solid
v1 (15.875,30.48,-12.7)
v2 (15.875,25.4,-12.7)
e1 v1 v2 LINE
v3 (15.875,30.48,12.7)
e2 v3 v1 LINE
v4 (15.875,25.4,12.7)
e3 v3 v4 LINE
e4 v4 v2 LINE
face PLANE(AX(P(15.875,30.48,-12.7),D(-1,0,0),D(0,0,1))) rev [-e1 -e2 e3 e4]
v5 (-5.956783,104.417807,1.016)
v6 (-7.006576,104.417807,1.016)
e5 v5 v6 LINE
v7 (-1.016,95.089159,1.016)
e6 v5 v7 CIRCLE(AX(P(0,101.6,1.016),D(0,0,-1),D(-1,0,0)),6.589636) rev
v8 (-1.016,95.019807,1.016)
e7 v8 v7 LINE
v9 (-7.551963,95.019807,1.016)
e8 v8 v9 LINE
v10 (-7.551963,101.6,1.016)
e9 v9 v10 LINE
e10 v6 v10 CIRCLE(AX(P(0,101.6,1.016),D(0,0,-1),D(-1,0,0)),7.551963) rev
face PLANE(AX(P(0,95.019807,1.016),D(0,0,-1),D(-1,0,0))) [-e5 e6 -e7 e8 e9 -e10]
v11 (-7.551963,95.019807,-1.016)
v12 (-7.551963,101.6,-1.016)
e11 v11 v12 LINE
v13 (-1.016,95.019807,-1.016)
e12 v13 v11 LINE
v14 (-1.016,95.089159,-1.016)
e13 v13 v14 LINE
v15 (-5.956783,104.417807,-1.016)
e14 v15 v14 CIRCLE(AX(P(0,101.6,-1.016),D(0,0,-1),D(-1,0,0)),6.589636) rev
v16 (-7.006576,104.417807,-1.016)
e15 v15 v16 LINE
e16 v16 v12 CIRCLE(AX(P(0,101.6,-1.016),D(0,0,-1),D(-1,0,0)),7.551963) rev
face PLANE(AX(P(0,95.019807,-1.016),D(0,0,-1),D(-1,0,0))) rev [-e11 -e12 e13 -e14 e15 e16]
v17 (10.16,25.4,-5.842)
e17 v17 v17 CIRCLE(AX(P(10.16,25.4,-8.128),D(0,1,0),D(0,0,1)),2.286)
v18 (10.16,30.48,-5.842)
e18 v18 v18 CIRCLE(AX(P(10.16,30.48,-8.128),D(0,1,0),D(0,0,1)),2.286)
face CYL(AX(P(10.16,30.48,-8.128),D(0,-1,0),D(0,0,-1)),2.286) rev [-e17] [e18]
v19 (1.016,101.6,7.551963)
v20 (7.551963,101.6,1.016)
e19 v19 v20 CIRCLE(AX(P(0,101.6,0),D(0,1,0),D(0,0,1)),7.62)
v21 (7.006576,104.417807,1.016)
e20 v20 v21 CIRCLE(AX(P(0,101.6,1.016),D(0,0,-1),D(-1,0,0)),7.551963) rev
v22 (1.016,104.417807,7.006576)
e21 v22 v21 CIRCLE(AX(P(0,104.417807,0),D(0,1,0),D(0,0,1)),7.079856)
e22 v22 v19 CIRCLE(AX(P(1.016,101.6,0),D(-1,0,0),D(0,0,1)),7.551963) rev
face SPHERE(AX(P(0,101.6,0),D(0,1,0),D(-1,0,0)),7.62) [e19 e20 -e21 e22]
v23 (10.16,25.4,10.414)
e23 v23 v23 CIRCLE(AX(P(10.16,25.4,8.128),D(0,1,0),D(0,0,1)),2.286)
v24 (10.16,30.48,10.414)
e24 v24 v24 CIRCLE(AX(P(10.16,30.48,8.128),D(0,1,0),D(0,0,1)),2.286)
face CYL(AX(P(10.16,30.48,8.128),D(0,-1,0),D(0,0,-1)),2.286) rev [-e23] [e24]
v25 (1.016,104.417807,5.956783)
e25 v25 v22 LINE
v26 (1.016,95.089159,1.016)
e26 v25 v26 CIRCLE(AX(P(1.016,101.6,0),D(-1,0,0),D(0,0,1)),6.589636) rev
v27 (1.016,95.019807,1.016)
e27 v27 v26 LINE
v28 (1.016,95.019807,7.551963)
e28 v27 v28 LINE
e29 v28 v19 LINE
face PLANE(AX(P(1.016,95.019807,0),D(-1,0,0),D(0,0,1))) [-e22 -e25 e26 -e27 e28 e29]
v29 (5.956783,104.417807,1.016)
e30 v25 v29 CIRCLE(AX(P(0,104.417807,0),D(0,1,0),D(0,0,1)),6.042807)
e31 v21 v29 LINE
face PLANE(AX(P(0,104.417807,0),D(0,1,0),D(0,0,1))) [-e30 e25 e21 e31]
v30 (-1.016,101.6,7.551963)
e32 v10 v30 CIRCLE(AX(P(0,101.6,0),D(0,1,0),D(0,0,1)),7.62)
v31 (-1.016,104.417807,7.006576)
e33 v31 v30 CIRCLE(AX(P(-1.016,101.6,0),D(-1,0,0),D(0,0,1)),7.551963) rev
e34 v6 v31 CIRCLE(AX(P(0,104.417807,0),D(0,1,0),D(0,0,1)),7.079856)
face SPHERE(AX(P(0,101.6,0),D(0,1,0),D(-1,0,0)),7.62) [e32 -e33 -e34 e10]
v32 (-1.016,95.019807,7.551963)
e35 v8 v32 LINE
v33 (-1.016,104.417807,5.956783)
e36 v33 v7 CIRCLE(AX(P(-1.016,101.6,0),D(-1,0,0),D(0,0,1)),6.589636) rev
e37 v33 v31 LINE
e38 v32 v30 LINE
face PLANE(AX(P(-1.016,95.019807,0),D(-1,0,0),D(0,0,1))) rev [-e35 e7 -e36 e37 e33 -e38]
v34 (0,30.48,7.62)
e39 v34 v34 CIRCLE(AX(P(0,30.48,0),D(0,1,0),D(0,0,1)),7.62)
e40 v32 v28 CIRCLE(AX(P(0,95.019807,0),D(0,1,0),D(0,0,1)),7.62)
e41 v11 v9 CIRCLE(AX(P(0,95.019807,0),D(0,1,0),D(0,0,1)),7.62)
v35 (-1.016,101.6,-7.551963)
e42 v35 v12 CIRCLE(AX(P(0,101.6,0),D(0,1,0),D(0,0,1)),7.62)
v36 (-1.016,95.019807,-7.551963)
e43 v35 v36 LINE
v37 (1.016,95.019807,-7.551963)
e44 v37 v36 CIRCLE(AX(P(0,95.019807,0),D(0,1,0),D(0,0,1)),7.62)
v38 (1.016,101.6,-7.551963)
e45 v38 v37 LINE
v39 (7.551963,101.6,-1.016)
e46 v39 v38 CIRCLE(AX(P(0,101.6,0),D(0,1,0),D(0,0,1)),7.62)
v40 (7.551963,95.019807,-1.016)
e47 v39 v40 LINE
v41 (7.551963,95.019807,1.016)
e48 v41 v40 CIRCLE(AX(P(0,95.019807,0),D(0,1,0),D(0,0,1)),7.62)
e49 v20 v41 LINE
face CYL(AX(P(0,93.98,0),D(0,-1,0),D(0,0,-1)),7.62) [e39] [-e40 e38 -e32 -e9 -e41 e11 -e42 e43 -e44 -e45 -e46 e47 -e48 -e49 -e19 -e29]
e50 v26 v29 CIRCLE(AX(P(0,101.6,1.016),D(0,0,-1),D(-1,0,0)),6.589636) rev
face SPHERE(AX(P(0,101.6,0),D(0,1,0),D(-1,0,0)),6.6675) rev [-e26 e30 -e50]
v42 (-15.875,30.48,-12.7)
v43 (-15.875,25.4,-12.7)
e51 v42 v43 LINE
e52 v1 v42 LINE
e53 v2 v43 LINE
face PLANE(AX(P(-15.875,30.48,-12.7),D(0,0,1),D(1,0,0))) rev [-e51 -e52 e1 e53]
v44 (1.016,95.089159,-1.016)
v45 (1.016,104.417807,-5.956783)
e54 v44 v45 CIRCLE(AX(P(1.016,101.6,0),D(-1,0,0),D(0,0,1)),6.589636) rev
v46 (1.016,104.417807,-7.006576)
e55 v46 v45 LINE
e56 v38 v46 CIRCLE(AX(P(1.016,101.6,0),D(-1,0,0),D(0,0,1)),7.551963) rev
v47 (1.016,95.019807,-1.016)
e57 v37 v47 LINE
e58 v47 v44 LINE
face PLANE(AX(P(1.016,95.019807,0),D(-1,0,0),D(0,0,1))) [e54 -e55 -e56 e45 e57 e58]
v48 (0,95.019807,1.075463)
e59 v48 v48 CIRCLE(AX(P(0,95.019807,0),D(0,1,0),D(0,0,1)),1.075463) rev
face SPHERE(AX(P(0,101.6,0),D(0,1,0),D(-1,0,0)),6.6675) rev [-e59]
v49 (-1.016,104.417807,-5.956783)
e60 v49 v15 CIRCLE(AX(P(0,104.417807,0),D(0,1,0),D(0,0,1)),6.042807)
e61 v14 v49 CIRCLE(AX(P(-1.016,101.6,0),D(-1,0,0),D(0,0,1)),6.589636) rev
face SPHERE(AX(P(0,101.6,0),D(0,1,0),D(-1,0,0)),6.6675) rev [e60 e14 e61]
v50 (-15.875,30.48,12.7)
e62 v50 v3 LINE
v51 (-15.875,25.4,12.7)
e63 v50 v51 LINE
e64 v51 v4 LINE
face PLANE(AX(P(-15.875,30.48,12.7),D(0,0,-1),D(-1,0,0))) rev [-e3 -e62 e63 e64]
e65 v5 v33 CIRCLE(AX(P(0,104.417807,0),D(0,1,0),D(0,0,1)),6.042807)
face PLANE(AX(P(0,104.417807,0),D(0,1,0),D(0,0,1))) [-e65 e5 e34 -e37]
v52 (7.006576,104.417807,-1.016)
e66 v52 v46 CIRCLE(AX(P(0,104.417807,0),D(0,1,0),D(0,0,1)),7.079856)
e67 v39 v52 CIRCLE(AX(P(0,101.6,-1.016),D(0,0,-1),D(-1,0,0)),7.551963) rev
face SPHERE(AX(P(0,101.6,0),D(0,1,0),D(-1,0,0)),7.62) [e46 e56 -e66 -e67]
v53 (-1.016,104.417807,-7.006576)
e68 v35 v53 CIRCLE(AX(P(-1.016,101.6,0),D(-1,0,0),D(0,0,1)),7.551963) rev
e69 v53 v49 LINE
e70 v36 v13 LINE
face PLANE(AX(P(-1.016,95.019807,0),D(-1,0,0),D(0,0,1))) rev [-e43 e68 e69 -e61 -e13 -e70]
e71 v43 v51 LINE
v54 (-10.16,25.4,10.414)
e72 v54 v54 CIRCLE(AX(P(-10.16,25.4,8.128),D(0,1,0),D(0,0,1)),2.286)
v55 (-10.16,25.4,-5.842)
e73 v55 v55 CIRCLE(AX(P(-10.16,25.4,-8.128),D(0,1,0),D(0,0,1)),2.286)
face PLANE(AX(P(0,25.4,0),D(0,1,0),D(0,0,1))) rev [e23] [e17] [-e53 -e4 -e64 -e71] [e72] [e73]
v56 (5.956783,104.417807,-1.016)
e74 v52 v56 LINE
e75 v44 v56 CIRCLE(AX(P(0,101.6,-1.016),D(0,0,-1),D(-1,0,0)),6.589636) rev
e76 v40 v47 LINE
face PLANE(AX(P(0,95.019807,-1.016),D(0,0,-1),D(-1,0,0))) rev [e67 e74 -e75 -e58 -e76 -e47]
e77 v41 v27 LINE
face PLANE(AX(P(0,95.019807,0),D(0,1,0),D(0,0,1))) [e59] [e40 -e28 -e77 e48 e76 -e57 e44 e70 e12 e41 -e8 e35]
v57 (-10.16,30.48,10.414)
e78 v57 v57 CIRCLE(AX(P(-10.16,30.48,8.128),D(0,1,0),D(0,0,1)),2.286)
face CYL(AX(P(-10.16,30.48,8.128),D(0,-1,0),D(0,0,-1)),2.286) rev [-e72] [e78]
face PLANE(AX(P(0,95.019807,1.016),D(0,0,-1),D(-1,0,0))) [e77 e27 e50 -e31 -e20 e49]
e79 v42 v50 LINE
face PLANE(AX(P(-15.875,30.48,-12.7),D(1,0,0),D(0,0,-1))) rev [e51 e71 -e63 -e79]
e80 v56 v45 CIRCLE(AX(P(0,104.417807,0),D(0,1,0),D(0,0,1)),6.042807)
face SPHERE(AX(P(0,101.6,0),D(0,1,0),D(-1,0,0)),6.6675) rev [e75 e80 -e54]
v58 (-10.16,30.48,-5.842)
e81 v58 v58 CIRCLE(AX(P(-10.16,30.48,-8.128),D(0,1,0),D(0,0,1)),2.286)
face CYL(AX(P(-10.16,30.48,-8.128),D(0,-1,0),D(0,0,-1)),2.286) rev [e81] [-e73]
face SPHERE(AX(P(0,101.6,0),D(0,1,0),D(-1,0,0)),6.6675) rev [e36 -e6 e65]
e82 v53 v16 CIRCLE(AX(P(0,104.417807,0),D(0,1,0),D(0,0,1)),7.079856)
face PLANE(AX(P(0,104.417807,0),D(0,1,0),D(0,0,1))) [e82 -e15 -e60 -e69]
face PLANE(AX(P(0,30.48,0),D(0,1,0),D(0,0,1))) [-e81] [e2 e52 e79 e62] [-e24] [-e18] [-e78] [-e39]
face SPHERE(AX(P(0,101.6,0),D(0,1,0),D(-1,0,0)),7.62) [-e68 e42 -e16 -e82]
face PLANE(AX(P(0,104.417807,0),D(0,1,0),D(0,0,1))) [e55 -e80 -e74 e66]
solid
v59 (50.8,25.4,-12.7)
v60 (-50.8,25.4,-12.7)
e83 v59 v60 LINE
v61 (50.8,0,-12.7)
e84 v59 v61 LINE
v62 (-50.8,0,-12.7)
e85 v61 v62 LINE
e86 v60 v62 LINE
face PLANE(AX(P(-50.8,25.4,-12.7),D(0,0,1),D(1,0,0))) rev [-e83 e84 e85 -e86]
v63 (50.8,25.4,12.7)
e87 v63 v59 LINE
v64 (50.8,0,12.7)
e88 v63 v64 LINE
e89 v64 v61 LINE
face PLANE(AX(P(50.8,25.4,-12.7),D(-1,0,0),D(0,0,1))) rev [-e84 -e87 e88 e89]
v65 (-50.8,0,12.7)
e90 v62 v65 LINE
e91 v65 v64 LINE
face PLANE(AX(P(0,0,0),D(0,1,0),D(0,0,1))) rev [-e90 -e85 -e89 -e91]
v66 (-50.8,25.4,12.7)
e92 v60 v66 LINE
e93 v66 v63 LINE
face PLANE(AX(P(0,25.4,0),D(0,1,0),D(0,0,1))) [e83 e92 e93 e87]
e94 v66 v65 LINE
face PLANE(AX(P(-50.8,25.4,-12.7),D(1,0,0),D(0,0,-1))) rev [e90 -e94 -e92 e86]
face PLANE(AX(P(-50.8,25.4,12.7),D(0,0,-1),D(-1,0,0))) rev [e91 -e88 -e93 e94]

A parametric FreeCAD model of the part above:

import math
import FreeCAD as App
import Part
import Sketcher

V = App.Vector
Q = App.Units.Quantity


def add_polygon(sketch, points):
    """Adds a closed chain of lines whose ends are joined by coincident constraints."""
    first, n = sketch.GeometryCount, len(points)
    for a, b in zip(points, points[1:] + points[:1]):
        sketch.addGeometry(Part.LineSegment(App.Vector(*a, 0), App.Vector(*b, 0)), False)
    for i in range(n):
        sketch.addConstraint(Sketcher.Constraint("Coincident", first + i, 2, first + (i + 1) % n, 1))

doc = App.newDocument("Part")
body = doc.addObject("PartDesign::Body", "Body")

# Sketch on XZ plane
sketch1 = body.newObject("Sketcher::SketchObject", "Sketch")
sketch1.AttachmentSupport = (doc.getObject("XZ_Plane"), [""])
sketch1.MapMode = "FlatFace"
add_polygon(sketch1, [(-50.8, -12.7), (-50.8, 12.7), (50.8, 12.7), (50.8, -12.7)])  # lines 0-3
sketch1.addConstraint(Sketcher.Constraint("Vertical", 0))
sketch1.addConstraint(Sketcher.Constraint("Horizontal", 1))
sketch1.addConstraint(Sketcher.Constraint("Vertical", 2))
sketch1.addConstraint(Sketcher.Constraint("Horizontal", 3))
sketch1.addConstraint(Sketcher.Constraint("Symmetric", 0, 2, 2, 2, -1, 1))
sketch1.addConstraint(Sketcher.Constraint("DistanceX", 1, 1, 1, 2, Q("4 in")))
sketch1.addConstraint(Sketcher.Constraint("DistanceY", 0, 1, 0, 2, Q("1 in")))
pad1 = body.newObject("PartDesign::Pad", "Pad")
pad1.Profile = sketch1
pad1.Length = Q("1 in")
pad1.Reversed = True
body2 = doc.addObject("PartDesign::Body", "Body001")

# Sketch on XZ plane
sketch2 = body2.newObject("Sketcher::SketchObject", "Sketch001")
sketch2.AttachmentSupport = (doc.getObject("XZ_Plane001"), [""])
sketch2.MapMode = "FlatFace"
sketch2.AttachmentOffset = App.Placement(V(0, 0, -1 * 25.4), App.Rotation())
add_polygon(sketch2, [(-15.875, -12.7), (-15.875, 12.7), (15.875, 12.7), (15.875, -12.7)])  # lines 0-3
sketch2.addGeometry(Part.Circle(V(-10.16, 8.128, 0), V(0, 0, 1), 2.286), False)  # 4
sketch2.addGeometry(Part.Circle(V(10.16, 8.128, 0), V(0, 0, 1), 2.286), False)  # 5
sketch2.addGeometry(Part.Circle(V(-10.16, -8.128, 0), V(0, 0, 1), 2.286), False)  # 6
sketch2.addGeometry(Part.Circle(V(10.16, -8.128, 0), V(0, 0, 1), 2.286), False)  # 7
sketch2.addConstraint(Sketcher.Constraint("Vertical", 0))
sketch2.addConstraint(Sketcher.Constraint("Horizontal", 1))
sketch2.addConstraint(Sketcher.Constraint("Vertical", 2))
sketch2.addConstraint(Sketcher.Constraint("Horizontal", 3))
sketch2.addConstraint(Sketcher.Constraint("Equal", 4, 5))
sketch2.addConstraint(Sketcher.Constraint("Equal", 5, 6))
sketch2.addConstraint(Sketcher.Constraint("Equal", 6, 7))
sketch2.addConstraint(Sketcher.Constraint("Symmetric", 5, 3, 6, 3, -1, 1))
sketch2.addConstraint(Sketcher.Constraint("Symmetric", 4, 3, 7, 3, -1, 1))
sketch2.addConstraint(Sketcher.Constraint("Symmetric", 0, 2, 2, 2, -1, 1))
sketch2.addConstraint(Sketcher.Constraint("Symmetric", 4, 3, 5, 3, -2))
sketch2.addConstraint(Sketcher.Constraint("Diameter", 4, Q("0.18 in")))
sketch2.addConstraint(Sketcher.Constraint("DistanceY", 0, 1, 0, 2, Q("1 in")))
sketch2.addConstraint(Sketcher.Constraint("DistanceX", 1, 1, 1, 2, Q("1.25 in")))
sketch2.addConstraint(Sketcher.Constraint("DistanceX", 4, 3, -1, 1, Q("0.4 in")))
sketch2.addConstraint(Sketcher.Constraint("DistanceY", -1, 1, 4, 3, Q("0.32 in")))
pad2 = body2.newObject("PartDesign::Pad", "Pad001")
pad2.Profile = sketch2
pad2.Length = Q("0.2 in")
pad2.Reversed = True

# Sketch on XZ plane
sketch3 = body2.newObject("Sketcher::SketchObject", "Sketch002")
sketch3.AttachmentSupport = (doc.getObject("XZ_Plane001"), [""])
sketch3.MapMode = "FlatFace"
sketch3.AttachmentOffset = App.Placement(V(0, 0, -1.2 * 25.4), App.Rotation())
sketch3.addGeometry(Part.Circle(V(0, 0, 0), V(0, 0, 1), 7.62), False)
sketch3.addConstraint(Sketcher.Constraint("Coincident", 0, 3, -1, 1))
sketch3.addConstraint(Sketcher.Constraint("Diameter", 0, Q("0.6 in")))
pad3 = body2.newObject("PartDesign::Pad", "Pad002")
pad3.Profile = sketch3
pad3.Length = Q("2.5 in")
pad3.Reversed = True

# Sketch on XY plane
sketch4 = body2.newObject("Sketcher::SketchObject", "Sketch003")
sketch4.AttachmentSupport = (doc.getObject("XY_Plane001"), [""])
sketch4.MapMode = "FlatFace"
sketch4.addGeometry(Part.LineSegment(V(-7.62, 93.98, 0), V(0, 93.98, 0)), False)
sketch4.addGeometry(Part.LineSegment(V(0, 93.98, 0), V(0, 94.9325, 0)), False)
sketch4.addGeometry(Part.ArcOfCircle(Part.Circle(V(0, 101.6, 0), V(0, 0, 1), 6.6675), math.radians(155), math.radians(270)), False)
sketch4.addGeometry(Part.LineSegment(V(-6.042807, 104.417807, 0), V(-7.079856, 104.417807, 0)), False)
sketch4.addGeometry(Part.ArcOfCircle(Part.Circle(V(0, 101.6, 0), V(0, 0, 1), 7.62), math.radians(158.297273), math.radians(180)), False)
sketch4.addGeometry(Part.LineSegment(V(-7.62, 101.6, 0), V(-7.62, 93.98, 0)), False)
sketch4.addConstraint(Sketcher.Constraint("Coincident", 0, 2, 1, 1))
sketch4.addConstraint(Sketcher.Constraint("Coincident", 1, 2, 2, 2))
sketch4.addConstraint(Sketcher.Constraint("Coincident", 2, 1, 3, 1))
sketch4.addConstraint(Sketcher.Constraint("Coincident", 3, 2, 4, 1))
sketch4.addConstraint(Sketcher.Constraint("Tangent", 4, 2, 5, 1))
sketch4.addConstraint(Sketcher.Constraint("Coincident", 5, 2, 0, 1))
sketch4.addConstraint(Sketcher.Constraint("Horizontal", 0))
sketch4.addConstraint(Sketcher.Constraint("Vertical", 1))
sketch4.addConstraint(Sketcher.Constraint("Horizontal", 3))
sketch4.addConstraint(Sketcher.Constraint("Vertical", 5))
sketch4.addConstraint(Sketcher.Constraint("Coincident", 4, 3, 2, 3))
sketch4.addConstraint(Sketcher.Constraint("PointOnObject", 2, 3, -2))
sketch4.addConstraint(Sketcher.Constraint("PointOnObject", 0, 2, -2))
sketch4.addConstraint(Sketcher.Constraint("Equal", 0, 5))
sketch4.addConstraint(Sketcher.Constraint("Radius", 4, Q("0.3 in")))
sketch4.addConstraint(Sketcher.Constraint("DistanceY", -1, 1, 2, 3, Q("4 in")))
sketch4.addConstraint(Sketcher.Constraint("Radius", 2, Q("0.2625 in")))
sketch4.addConstraint(Sketcher.Constraint("DistanceX", 3, 2, 3, 1, 1.037049))
revolution = body2.newObject("PartDesign::Revolution", "Revolution")
revolution.Profile = sketch4
revolution.ReferenceAxis = (sketch4, ["V_Axis"])
revolution.Angle = 360

# Sketch on XZ plane
sketch5 = body2.newObject("Sketcher::SketchObject", "Sketch004")
sketch5.AttachmentSupport = (doc.getObject("XZ_Plane001"), [""])
sketch5.MapMode = "FlatFace"
sketch5.AttachmentOffset = App.Placement(V(0, 0, -104.417807), App.Rotation())
add_polygon(sketch5, [(-1.016, 1.016), (-1.016, 8.89), (1.016, 8.89), (1.016, 1.016), (8.89, 1.016), (8.89, -1.016), (1.016, -1.016), (1.016, -8.89), (-1.016, -8.89), (-1.016, -1.016), (-8.89, -1.016), (-8.89, 1.016)])  # lines 0-11
sketch5.addConstraint(Sketcher.Constraint("Vertical", 0))
sketch5.addConstraint(Sketcher.Constraint("Horizontal", 1))
sketch5.addConstraint(Sketcher.Constraint("Vertical", 2))
sketch5.addConstraint(Sketcher.Constraint("Horizontal", 3))
sketch5.addConstraint(Sketcher.Constraint("Vertical", 4))
sketch5.addConstraint(Sketcher.Constraint("Horizontal", 5))
sketch5.addConstraint(Sketcher.Constraint("Vertical", 6))
sketch5.addConstraint(Sketcher.Constraint("Horizontal", 7))
sketch5.addConstraint(Sketcher.Constraint("Vertical", 8))
sketch5.addConstraint(Sketcher.Constraint("Horizontal", 9))
sketch5.addConstraint(Sketcher.Constraint("Vertical", 10))
sketch5.addConstraint(Sketcher.Constraint("Horizontal", 11))
sketch5.addConstraint(Sketcher.Constraint("Symmetric", 0, 2, 6, 2, -1, 1))
sketch5.addConstraint(Sketcher.Constraint("Symmetric", 2, 2, 8, 2, -1, 1))
sketch5.addConstraint(Sketcher.Constraint("Symmetric", 4, 2, 10, 2, -1, 1))
sketch5.addConstraint(Sketcher.Constraint("Symmetric", 5, 2, 8, 2, -2))
sketch5.addConstraint(Sketcher.Constraint("Equal", 11, 0))
sketch5.addConstraint(Sketcher.Constraint("Equal", 7, 4))
sketch5.addConstraint(Sketcher.Constraint("DistanceX", 1, 1, 1, 2, Q("0.08 in")))
sketch5.addConstraint(Sketcher.Constraint("DistanceX", 3, 1, 3, 2, Q("0.31 in")))
pocket1 = body2.newObject("PartDesign::Pocket", "Pocket")
pocket1.Profile = sketch5
pocket1.Length = Q("0.37 in")
pocket1.Reversed = True

doc.recompute()
